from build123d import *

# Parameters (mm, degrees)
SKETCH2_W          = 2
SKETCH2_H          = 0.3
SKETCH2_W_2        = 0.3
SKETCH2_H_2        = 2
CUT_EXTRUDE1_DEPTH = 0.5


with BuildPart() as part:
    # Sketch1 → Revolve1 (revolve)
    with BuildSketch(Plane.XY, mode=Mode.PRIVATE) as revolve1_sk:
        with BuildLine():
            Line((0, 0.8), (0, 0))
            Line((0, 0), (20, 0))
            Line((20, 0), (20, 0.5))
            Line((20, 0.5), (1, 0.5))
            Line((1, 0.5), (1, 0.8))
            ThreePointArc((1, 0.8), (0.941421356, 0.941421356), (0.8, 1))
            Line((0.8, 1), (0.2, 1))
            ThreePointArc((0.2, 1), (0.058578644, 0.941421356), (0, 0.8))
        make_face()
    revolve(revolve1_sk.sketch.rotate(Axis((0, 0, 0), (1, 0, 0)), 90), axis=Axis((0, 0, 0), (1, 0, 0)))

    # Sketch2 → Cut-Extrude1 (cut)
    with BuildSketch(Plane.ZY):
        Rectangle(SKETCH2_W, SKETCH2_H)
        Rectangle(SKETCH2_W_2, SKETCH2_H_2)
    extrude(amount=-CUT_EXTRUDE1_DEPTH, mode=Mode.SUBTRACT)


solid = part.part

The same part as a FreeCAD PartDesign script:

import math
import FreeCAD as App
import Part
import Sketcher
from FreeCAD import Vector
Q = App.Units.Quantity

doc = App.newDocument("Part")
body = doc.addObject("PartDesign::Body", "Body")

# Sketch on XY plane
sketch1 = doc.addObject("Sketcher::SketchObject", "Sketch")
body.addObject(sketch1)
sketch1.AttachmentSupport = (doc.XY_Plane, [""])
sketch1.MapMode = "FlatFace"
sketch1.addGeometry([
    Part.LineSegment(Vector(0, 0.8, 0), Vector(0, 0, 0)),  # 0
    Part.LineSegment(Vector(0, 0, 0), Vector(20, 0, 0)),  # 1
    Part.LineSegment(Vector(20, 0, 0), Vector(20, 0.5, 0)),  # 2
    Part.LineSegment(Vector(20, 0.5, 0), Vector(1, 0.5, 0)),  # 3
    Part.LineSegment(Vector(1, 0.5, 0), Vector(1, 0.8, 0)),  # 4
    Part.ArcOfCircle(Part.Circle(Vector(0.8, 0.8, 0), Vector(0, 0, 1), 0.2), math.radians(0), math.radians(90)),  # 5
    Part.LineSegment(Vector(0.8, 1, 0), Vector(0.2, 1, 0)),  # 6
    Part.ArcOfCircle(Part.Circle(Vector(0.2, 0.8, 0), Vector(0, 0, 1), 0.2), math.radians(90), math.radians(180)),  # 7
], False)
sketch1.addConstraint([
    Sketcher.Constraint("Coincident", 0, 2, 1, 1),
    Sketcher.Constraint("Coincident", 1, 2, 2, 1),
    Sketcher.Constraint("Coincident", 2, 2, 3, 1),
    Sketcher.Constraint("Coincident", 3, 2, 4, 1),
    Sketcher.Constraint("Tangent", 4, 2, 5, 1),
    Sketcher.Constraint("Tangent", 5, 2, 6, 1),
    Sketcher.Constraint("Tangent", 6, 2, 7, 1),
    Sketcher.Constraint("Tangent", 7, 2, 0, 1),
    Sketcher.Constraint("Vertical", 0),
    Sketcher.Constraint("Horizontal", 1),
    Sketcher.Constraint("Vertical", 2),
    Sketcher.Constraint("Horizontal", 3),
    Sketcher.Constraint("Vertical", 4),
    Sketcher.Constraint("Horizontal", 6),
    Sketcher.Constraint("Coincident", 0, 2, -1, 1),
    Sketcher.Constraint("Equal", 5, 7),
    Sketcher.Constraint("Radius", 5, Q("0.2 mm")),
    Sketcher.Constraint("DistanceX", 1, 1, 1, 2, Q("20 mm")),
    Sketcher.Constraint("DistanceX", 3, 2, 3, 1, Q("19 mm")),
    Sketcher.Constraint("DistanceY", 0, 2, 0, 1, Q("0.8 mm")),
    Sketcher.Constraint("DistanceY", 2, 1, 2, 2, Q("0.5 mm")),
])
revolution = doc.addObject("PartDesign::Revolution", "Revolution")
body.addObject(revolution)
revolution.Profile = sketch1
revolution.ReferenceAxis = (sketch1, ["H_Axis"])
revolution.Angle = 360

# Sketch on YZ plane
sketch2 = doc.addObject("Sketcher::SketchObject", "Sketch001")
body.addObject(sketch2)
sketch2.AttachmentSupport = (doc.YZ_Plane, [""])
sketch2.MapMode = "FlatFace"
sketch2.addGeometry([
    Part.LineSegment(Vector(0.15, -1, 0), Vector(-0.15, -1, 0)),  # 0
    Part.LineSegment(Vector(-0.15, -1, 0), Vector(-0.15, -0.15, 0)),  # 1
    Part.LineSegment(Vector(-0.15, -0.15, 0), Vector(-1, -0.15, 0)),  # 2
    Part.LineSegment(Vector(-1, -0.15, 0), Vector(-1, 0.15, 0)),  # 3
    Part.LineSegment(Vector(-1, 0.15, 0), Vector(-0.15, 0.15, 0)),  # 4
    Part.LineSegment(Vector(-0.15, 0.15, 0), Vector(-0.15, 1, 0)),  # 5
    Part.LineSegment(Vector(-0.15, 1, 0), Vector(0.15, 1, 0)),  # 6
    Part.LineSegment(Vector(0.15, 1, 0), Vector(0.15, 0.15, 0)),  # 7
    Part.LineSegment(Vector(0.15, 0.15, 0), Vector(1, 0.15, 0)),  # 8
    Part.LineSegment(Vector(1, 0.15, 0), Vector(1, -0.15, 0)),  # 9
    Part.LineSegment(Vector(1, -0.15, 0), Vector(0.15, -0.15, 0)),  # 10
    Part.LineSegment(Vector(0.15, -0.15, 0), Vector(0.15, -1, 0)),  # 11
], False)
sketch2.addConstraint([
    Sketcher.Constraint("Coincident", 0, 2, 1, 1),
    Sketcher.Constraint("Coincident", 1, 2, 2, 1),
    Sketcher.Constraint("Coincident", 2, 2, 3, 1),
    Sketcher.Constraint("Coincident", 3, 2, 4, 1),
    Sketcher.Constraint("Coincident", 4, 2, 5, 1),
    Sketcher.Constraint("Coincident", 5, 2, 6, 1),
    Sketcher.Constraint("Coincident", 6, 2, 7, 1),
    Sketcher.Constraint("Coincident", 7, 2, 8, 1),
    Sketcher.Constraint("Coincident", 8, 2, 9, 1),
    Sketcher.Constraint("Coincident", 9, 2, 10, 1),
    Sketcher.Constraint("Coincident", 10, 2, 11, 1),
    Sketcher.Constraint("Coincident", 11, 2, 0, 1),
    Sketcher.Constraint("Horizontal", 0),
    Sketcher.Constraint("Vertical", 1),
    Sketcher.Constraint("Horizontal", 2),
    Sketcher.Constraint("Vertical", 3),
    Sketcher.Constraint("Horizontal", 4),
    Sketcher.Constraint("Vertical", 5),
    Sketcher.Constraint("Horizontal", 6),
    Sketcher.Constraint("Vertical", 7),
    Sketcher.Constraint("Horizontal", 8),
    Sketcher.Constraint("Vertical", 9),
    Sketcher.Constraint("Horizontal", 10),
    Sketcher.Constraint("Vertical", 11),
    Sketcher.Constraint("Symmetric", 0, 2, 6, 2, -1, 1),
    Sketcher.Constraint("Symmetric", 2, 2, 8, 2, -1, 1),
    Sketcher.Constraint("Symmetric", 4, 2, 10, 2, -1, 1),
    Sketcher.Constraint("Symmetric", 4, 2, 7, 2, -2),
    Sketcher.Constraint("Equal", 10, 1),
    Sketcher.Constraint("Equal", 6, 3),
    Sketcher.Constraint("DistanceX", 0, 2, 0, 1, Q("0.3 mm")),
    Sketcher.Constraint("DistanceY", 0, 2, -1, 1, Q("1 mm")),
])
pocket1 = doc.addObject("PartDesign::Pocket", "Pocket")
body.addObject(pocket1)
pocket1.Profile = sketch2
pocket1.Length = 0.5
pocket1.Reversed = True

doc.recompute()
